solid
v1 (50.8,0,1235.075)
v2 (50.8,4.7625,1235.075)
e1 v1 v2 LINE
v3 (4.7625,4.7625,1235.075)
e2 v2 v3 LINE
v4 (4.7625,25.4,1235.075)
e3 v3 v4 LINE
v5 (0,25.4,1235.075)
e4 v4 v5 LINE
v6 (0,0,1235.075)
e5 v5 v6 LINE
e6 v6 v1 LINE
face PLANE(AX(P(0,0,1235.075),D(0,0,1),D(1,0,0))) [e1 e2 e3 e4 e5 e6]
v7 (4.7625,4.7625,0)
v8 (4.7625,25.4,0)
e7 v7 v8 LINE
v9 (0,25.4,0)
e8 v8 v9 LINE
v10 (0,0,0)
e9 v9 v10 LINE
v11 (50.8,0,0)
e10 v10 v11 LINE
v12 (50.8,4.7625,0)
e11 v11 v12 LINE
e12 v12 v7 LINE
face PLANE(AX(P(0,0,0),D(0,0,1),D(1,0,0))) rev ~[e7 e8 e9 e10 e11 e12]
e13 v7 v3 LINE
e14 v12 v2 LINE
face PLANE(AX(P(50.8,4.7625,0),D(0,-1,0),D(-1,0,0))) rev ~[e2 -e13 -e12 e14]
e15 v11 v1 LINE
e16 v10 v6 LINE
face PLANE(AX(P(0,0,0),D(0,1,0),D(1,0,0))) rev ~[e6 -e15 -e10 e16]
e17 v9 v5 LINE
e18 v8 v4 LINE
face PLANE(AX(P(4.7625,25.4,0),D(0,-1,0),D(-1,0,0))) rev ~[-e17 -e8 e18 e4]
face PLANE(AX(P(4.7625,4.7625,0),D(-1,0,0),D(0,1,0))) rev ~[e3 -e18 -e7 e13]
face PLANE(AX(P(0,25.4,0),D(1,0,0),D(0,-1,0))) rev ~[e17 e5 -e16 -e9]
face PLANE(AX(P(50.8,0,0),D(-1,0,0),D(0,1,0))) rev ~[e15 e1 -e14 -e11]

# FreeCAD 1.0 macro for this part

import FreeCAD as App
import Part
import Sketcher

V = App.Vector
Q = App.Units.Quantity

doc = App.newDocument("Part")
body = doc.addObject("PartDesign::Body", "Body")

# Sketch on XY plane
sketch1 = body.newObject("Sketcher::SketchObject", "Sketch")
sketch1.AttachmentSupport = (doc.getObject("XY_Plane"), [""])
sketch1.MapMode = "FlatFace"
sketch1.addGeometry([
    Part.LineSegment(V(0, 25.4, 0), V(0, 0, 0)),  # 0
    Part.LineSegment(V(0, 0, 0), V(50.8, 0, 0)),  # 1
    Part.LineSegment(V(50.8, 0, 0), V(50.8, 4.8, 0)),  # 2
    Part.LineSegment(V(50.8, 4.8, 0), V(4.8, 4.8, 0)),  # 3
    Part.LineSegment(V(4.8, 4.8, 0), V(4.8, 25.4, 0)),  # 4
    Part.LineSegment(V(4.8, 25.4, 0), V(0, 25.4, 0)),  # 5
], False)
sketch1.addConstraint([
    Sketcher.Constraint("Coincident", 0, 2, 1, 1),
    Sketcher.Constraint("Coincident", 1, 2, 2, 1),
    Sketcher.Constraint("Coincident", 2, 2, 3, 1),
    Sketcher.Constraint("Coincident", 3, 2, 4, 1),
    Sketcher.Constraint("Coincident", 4, 2, 5, 1),
    Sketcher.Constraint("Coincident", 5, 2, 0, 1),
    Sketcher.Constraint("Vertical", 0),
    Sketcher.Constraint("Horizontal", 1),
    Sketcher.Constraint("Vertical", 2),
    Sketcher.Constraint("Horizontal", 3),
    Sketcher.Constraint("Vertical", 4),
    Sketcher.Constraint("Horizontal", 5),
    Sketcher.Constraint("Coincident", 0, 2, -1, 1),
    Sketcher.Constraint("Equal", 5, 2),
    Sketcher.Constraint("DistanceX", 1, 1, 1, 2, Q("2 in")),
    Sketcher.Constraint("DistanceY", 0, 2, 0, 1, Q("1 in")),
    Sketcher.Constraint("DistanceX", 5, 2, 5, 1, Q("0.1875 in")),
])
pad1 = body.newObject("PartDesign::Pad", "Pad")
pad1.Profile = sketch1
pad1.Length = Q("48.625 in")

doc.recompute()
